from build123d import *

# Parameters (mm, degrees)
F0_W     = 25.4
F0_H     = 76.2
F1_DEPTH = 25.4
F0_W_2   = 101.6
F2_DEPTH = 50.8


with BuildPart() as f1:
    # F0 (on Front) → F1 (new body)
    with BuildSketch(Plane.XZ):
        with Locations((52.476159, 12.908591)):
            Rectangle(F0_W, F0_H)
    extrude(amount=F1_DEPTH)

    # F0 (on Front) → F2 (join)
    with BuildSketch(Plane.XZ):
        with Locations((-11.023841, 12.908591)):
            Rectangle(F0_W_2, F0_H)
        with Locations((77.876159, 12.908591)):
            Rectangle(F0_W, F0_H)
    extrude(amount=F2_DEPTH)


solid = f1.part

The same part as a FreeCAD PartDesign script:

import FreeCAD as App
import Part
import Sketcher
Q = App.Units.Quantity


def add_polygon(sketch, points):
    """Adds a closed chain of lines whose ends are joined by coincident constraints."""
    first, n = sketch.GeometryCount, len(points)
    for a, b in zip(points, points[1:] + points[:1]):
        sketch.addGeometry(Part.LineSegment(App.Vector(*a, 0), App.Vector(*b, 0)), False)
    for i in range(n):
        sketch.addConstraint(Sketcher.Constraint("Coincident", first + i, 2, first + (i + 1) % n, 1))

doc = App.newDocument("Part")
body = doc.addObject("PartDesign::Body", "Body")

# Sketch on XZ plane
sketch1 = body.newObject("Sketcher::SketchObject", "Sketch")
sketch1.AttachmentSupport = (doc.getObject("XZ_Plane"), [""])
sketch1.MapMode = "FlatFace"
add_polygon(sketch1, [(39.776159, 51.008591), (39.776159, -25.191409), (65.176159, -25.191409), (65.176159, 51.008591)])  # lines 0-3
sketch1.addConstraint([
    Sketcher.Constraint("Vertical", 0),
    Sketcher.Constraint("Horizontal", 1),
    Sketcher.Constraint("Vertical", 2),
    Sketcher.Constraint("Horizontal", 3),
    Sketcher.Constraint("DistanceX", 1, 1, 1, 2, Q("1 in")),
    Sketcher.Constraint("DistanceY", 0, 2, 0, 1, Q("3 in")),
    Sketcher.Constraint("DistanceX", -1, 1, 0, 2, 39.776159),
    Sketcher.Constraint("DistanceY", 0, 2, -1, 1, 25.191409),
])
pad1 = body.newObject("PartDesign::Pad", "Pad")
pad1.Profile = sketch1
pad1.Length = Q("1 in")

# Sketch on XZ plane
sketch2 = body.newObject("Sketcher::SketchObject", "Sketch001")
sketch2.AttachmentSupport = (doc.getObject("XZ_Plane"), [""])
sketch2.MapMode = "FlatFace"
add_polygon(sketch2, [(-61.823841, 51.008591), (-61.823841, -25.191409), (39.776159, -25.191409), (39.776159, 51.008591)])  # lines 0-3
add_polygon(sketch2, [(65.176159, 51.008591), (65.176159, -25.191409), (90.576159, -25.191409), (90.576159, 51.008591)])  # lines 4-7
sketch2.addConstraint([
    Sketcher.Constraint("Vertical", 0),
    Sketcher.Constraint("Horizontal", 1),
    Sketcher.Constraint("Vertical", 2),
    Sketcher.Constraint("Horizontal", 3),
    Sketcher.Constraint("Vertical", 4),
    Sketcher.Constraint("Horizontal", 5),
    Sketcher.Constraint("Vertical", 6),
    Sketcher.Constraint("Horizontal", 7),
    Sketcher.Constraint("Horizontal", 1, 2, 4, 2),
    Sketcher.Constraint("Horizontal", 3, 2, 6, 2),
    Sketcher.Constraint("DistanceX", 1, 1, 1, 2, Q("4 in")),
    Sketcher.Constraint("DistanceX", 5, 1, 5, 2, Q("1 in")),
    Sketcher.Constraint("DistanceY", 0, 2, 0, 1, Q("3 in")),
    Sketcher.Constraint("DistanceX", 1, 2, 4, 2, Q("1 in")),
    Sketcher.Constraint("DistanceX", 0, 2, -1, 1, 61.823841),
    Sketcher.Constraint("DistanceY", 0, 2, -1, 1, 25.191409),
])
pad2 = body.newObject("PartDesign::Pad", "Pad001")
pad2.Profile = sketch2
pad2.Length = Q("2 in")

doc.recompute()
